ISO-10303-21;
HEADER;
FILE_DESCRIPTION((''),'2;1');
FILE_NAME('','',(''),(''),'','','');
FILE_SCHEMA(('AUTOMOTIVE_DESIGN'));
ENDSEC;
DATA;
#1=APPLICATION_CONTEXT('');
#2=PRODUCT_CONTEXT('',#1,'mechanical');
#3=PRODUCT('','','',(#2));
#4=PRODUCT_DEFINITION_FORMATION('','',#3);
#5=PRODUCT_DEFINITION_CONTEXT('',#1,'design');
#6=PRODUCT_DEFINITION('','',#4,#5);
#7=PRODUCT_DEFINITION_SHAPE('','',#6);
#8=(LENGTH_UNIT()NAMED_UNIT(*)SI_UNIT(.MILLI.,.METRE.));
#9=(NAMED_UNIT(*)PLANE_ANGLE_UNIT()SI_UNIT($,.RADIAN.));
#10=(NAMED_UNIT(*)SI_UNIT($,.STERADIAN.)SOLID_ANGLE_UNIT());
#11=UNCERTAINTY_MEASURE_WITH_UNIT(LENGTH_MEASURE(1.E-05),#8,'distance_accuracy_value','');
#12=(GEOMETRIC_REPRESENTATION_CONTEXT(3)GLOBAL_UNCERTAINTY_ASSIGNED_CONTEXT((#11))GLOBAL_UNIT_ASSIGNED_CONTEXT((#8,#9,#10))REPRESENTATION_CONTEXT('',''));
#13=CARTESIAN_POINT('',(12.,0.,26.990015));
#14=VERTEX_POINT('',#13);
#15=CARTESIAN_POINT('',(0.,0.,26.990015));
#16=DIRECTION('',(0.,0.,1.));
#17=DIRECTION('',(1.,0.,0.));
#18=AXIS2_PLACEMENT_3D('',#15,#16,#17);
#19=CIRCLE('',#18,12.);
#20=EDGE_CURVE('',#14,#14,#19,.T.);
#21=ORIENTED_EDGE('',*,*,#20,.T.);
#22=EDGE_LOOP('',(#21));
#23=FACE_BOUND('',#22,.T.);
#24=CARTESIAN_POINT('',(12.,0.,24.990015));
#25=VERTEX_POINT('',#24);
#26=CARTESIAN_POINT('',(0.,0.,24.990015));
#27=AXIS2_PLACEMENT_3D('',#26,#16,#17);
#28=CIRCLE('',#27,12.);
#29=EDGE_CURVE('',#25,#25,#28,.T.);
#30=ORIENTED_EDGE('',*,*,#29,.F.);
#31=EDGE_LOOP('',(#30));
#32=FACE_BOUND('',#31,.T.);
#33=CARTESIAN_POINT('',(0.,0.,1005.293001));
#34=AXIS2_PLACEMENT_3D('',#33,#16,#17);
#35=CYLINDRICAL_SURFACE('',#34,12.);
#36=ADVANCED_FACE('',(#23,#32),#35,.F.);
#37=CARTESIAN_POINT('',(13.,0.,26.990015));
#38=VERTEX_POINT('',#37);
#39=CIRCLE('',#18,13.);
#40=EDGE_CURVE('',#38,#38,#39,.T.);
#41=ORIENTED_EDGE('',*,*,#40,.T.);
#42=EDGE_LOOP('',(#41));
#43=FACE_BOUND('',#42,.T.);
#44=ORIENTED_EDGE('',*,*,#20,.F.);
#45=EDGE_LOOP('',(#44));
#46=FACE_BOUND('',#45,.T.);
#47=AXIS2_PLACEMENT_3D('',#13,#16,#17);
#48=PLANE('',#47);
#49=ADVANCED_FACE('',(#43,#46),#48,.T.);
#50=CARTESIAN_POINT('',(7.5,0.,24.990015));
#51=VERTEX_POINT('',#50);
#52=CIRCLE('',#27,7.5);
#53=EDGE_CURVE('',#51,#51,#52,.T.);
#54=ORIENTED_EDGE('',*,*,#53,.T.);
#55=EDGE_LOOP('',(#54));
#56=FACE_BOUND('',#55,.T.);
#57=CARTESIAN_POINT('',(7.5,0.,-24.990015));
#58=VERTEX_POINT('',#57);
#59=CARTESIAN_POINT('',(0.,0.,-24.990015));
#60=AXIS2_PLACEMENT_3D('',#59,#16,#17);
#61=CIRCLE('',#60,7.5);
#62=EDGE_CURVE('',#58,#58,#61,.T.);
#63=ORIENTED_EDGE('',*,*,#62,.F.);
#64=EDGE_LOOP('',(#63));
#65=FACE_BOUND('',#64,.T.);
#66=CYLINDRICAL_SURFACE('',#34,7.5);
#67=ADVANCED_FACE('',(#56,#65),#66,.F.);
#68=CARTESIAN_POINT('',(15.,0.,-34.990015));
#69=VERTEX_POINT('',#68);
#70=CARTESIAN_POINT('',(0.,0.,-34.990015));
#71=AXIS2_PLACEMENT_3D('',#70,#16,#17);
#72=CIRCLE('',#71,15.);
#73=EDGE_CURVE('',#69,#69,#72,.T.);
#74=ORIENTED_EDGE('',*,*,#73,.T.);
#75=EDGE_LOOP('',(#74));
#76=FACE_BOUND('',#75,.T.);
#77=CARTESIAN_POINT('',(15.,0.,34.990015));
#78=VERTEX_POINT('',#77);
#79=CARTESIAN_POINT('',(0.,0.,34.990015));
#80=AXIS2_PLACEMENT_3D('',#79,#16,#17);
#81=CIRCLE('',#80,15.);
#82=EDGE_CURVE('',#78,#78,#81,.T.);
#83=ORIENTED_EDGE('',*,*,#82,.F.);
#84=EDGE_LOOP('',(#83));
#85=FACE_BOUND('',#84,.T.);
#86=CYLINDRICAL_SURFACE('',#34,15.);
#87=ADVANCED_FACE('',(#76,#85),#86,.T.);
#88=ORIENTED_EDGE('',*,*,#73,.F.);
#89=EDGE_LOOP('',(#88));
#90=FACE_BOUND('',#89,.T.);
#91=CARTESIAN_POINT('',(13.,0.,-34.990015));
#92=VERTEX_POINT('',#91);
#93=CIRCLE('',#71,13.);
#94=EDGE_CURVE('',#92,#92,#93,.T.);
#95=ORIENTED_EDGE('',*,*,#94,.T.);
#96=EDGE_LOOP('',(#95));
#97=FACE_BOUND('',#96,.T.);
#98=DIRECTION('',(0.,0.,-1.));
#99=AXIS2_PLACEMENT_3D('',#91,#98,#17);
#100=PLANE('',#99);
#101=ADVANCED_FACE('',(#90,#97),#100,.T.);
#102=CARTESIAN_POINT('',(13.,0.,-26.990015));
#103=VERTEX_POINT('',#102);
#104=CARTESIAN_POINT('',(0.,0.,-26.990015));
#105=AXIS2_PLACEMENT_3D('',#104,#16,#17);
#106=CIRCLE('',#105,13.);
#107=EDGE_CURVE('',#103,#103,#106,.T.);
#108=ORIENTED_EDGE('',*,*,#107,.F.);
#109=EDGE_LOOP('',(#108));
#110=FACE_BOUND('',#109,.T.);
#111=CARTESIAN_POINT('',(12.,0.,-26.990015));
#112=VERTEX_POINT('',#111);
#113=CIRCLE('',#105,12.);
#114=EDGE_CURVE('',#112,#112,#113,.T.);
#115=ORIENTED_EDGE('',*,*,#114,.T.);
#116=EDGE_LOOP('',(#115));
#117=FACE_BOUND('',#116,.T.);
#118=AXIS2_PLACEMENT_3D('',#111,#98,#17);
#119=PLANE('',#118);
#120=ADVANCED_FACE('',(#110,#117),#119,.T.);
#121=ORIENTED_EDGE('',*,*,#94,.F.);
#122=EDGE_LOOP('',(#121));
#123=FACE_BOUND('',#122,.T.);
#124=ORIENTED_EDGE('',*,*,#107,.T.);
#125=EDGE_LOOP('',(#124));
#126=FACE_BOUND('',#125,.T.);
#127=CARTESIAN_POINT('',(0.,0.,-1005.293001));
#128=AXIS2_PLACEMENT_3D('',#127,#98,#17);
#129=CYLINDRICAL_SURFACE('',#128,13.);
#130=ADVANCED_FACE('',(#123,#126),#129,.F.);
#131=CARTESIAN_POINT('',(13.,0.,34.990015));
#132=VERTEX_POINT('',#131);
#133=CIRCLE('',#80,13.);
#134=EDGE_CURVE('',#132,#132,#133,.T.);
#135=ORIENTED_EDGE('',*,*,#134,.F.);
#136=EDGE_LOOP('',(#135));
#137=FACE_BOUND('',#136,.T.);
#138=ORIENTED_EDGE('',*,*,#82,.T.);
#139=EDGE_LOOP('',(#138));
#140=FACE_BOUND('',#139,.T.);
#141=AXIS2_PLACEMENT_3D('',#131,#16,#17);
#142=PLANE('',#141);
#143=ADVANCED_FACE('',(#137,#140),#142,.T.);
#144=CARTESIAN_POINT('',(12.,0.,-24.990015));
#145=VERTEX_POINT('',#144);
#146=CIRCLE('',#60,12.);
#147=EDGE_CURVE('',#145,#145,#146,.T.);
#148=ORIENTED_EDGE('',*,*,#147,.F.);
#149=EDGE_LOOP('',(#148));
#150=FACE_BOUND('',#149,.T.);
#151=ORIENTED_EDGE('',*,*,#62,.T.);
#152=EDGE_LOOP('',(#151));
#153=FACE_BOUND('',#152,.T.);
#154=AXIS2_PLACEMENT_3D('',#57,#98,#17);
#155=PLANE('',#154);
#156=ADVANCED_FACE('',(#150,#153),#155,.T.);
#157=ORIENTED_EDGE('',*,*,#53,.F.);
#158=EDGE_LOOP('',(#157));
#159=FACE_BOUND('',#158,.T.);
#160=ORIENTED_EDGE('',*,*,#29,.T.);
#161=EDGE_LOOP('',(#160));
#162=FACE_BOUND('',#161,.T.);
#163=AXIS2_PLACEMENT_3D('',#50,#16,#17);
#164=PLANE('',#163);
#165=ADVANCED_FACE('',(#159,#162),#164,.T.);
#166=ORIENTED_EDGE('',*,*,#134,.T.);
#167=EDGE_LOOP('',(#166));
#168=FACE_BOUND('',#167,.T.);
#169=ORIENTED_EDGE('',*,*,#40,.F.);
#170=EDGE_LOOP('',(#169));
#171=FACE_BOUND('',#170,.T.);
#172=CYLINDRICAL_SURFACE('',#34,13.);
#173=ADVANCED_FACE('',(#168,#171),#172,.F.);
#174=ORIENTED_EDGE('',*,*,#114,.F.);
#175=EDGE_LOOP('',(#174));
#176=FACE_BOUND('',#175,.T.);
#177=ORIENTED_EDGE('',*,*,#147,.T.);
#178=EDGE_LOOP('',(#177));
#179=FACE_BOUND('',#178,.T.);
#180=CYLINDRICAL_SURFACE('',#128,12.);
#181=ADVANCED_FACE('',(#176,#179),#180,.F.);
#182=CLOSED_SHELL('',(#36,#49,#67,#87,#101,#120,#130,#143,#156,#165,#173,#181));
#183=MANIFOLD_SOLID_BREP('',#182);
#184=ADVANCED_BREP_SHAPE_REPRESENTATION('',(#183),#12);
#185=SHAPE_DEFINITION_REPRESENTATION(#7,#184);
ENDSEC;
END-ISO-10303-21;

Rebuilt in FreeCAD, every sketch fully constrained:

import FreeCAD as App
import Part
import Sketcher


def add_polygon(sketch, points):
    """Adds a closed chain of lines whose ends are joined by coincident constraints."""
    first, n = sketch.GeometryCount, len(points)
    for a, b in zip(points, points[1:] + points[:1]):
        sketch.addGeometry(Part.LineSegment(App.Vector(*a, 0), App.Vector(*b, 0)), False)
    for i in range(n):
        sketch.addConstraint(Sketcher.Constraint("Coincident", first + i, 2, first + (i + 1) % n, 1))

doc = App.newDocument("Part")
body = doc.addObject("PartDesign::Body", "Body")

sketch1 = body.newObject("Sketcher::SketchObject", "Sketch")
sketch1.AttachmentSupport = (doc.getObject("XZ_Plane"), [""])
sketch1.MapMode = "FlatFace"
add_polygon(sketch1, [(15, 0), (7.5, 0), (7.5, 24.990015), (12, 24.990015), (12, 26.990015), (13, 26.990015), (13, 34.990015), (15, 34.990015)])
sketch1.addConstraint(Sketcher.Constraint("Horizontal", 0))
sketch1.addConstraint(Sketcher.Constraint("Vertical", 1))
sketch1.addConstraint(Sketcher.Constraint("Horizontal", 2))
sketch1.addConstraint(Sketcher.Constraint("Vertical", 3))
sketch1.addConstraint(Sketcher.Constraint("Horizontal", 4))
sketch1.addConstraint(Sketcher.Constraint("Vertical", 5))
sketch1.addConstraint(Sketcher.Constraint("Horizontal", 6))
sketch1.addConstraint(Sketcher.Constraint("Vertical", 7))
sketch1.addConstraint(Sketcher.Constraint("PointOnObject", 0, 2, -1))
sketch1.addConstraint(Sketcher.Constraint("Equal", 6, 3))
sketch1.addConstraint(Sketcher.Constraint("DistanceX", 4, 1, 4, 2, 1.0))
sketch1.addConstraint(Sketcher.Constraint("DistanceX", 6, 1, 6, 2, 2.0))
sketch1.addConstraint(Sketcher.Constraint("DistanceY", 5, 1, 5, 2, 8.0))
sketch1.addConstraint(Sketcher.Constraint("DistanceX", 0, 2, 0, 1, 7.5))
sketch1.addConstraint(Sketcher.Constraint("DistanceX", -1, 1, 2, 2, 12.0))
sketch1.addConstraint(Sketcher.Constraint("DistanceY", 1, 1, 1, 2, 24.990015))
revolution = body.newObject("PartDesign::Revolution", "Revolution")
revolution.Profile = sketch1
revolution.ReferenceAxis = (sketch1, ["V_Axis"])
revolution.Angle = 360
body2 = doc.addObject("PartDesign::Body", "Body001")
doc.recompute()

body2.BaseFeature = body
doc.recompute()

mirroring = doc.addObject("Part::Mirroring", "Mirroring")
mirroring.Source = body
mirroring.Base = App.Vector(15, 0, 0)
mirroring.Normal = App.Vector(0, 0, -1)
body3 = doc.addObject("PartDesign::Body", "Body002")
body3.BaseFeature = mirroring
boolean = body2.newObject("PartDesign::Boolean", "Boolean")
boolean.Type = "Fuse"
boolean.addObjects([body3])
doc.recompute()
mirroring.Visibility = False

doc.recompute()
